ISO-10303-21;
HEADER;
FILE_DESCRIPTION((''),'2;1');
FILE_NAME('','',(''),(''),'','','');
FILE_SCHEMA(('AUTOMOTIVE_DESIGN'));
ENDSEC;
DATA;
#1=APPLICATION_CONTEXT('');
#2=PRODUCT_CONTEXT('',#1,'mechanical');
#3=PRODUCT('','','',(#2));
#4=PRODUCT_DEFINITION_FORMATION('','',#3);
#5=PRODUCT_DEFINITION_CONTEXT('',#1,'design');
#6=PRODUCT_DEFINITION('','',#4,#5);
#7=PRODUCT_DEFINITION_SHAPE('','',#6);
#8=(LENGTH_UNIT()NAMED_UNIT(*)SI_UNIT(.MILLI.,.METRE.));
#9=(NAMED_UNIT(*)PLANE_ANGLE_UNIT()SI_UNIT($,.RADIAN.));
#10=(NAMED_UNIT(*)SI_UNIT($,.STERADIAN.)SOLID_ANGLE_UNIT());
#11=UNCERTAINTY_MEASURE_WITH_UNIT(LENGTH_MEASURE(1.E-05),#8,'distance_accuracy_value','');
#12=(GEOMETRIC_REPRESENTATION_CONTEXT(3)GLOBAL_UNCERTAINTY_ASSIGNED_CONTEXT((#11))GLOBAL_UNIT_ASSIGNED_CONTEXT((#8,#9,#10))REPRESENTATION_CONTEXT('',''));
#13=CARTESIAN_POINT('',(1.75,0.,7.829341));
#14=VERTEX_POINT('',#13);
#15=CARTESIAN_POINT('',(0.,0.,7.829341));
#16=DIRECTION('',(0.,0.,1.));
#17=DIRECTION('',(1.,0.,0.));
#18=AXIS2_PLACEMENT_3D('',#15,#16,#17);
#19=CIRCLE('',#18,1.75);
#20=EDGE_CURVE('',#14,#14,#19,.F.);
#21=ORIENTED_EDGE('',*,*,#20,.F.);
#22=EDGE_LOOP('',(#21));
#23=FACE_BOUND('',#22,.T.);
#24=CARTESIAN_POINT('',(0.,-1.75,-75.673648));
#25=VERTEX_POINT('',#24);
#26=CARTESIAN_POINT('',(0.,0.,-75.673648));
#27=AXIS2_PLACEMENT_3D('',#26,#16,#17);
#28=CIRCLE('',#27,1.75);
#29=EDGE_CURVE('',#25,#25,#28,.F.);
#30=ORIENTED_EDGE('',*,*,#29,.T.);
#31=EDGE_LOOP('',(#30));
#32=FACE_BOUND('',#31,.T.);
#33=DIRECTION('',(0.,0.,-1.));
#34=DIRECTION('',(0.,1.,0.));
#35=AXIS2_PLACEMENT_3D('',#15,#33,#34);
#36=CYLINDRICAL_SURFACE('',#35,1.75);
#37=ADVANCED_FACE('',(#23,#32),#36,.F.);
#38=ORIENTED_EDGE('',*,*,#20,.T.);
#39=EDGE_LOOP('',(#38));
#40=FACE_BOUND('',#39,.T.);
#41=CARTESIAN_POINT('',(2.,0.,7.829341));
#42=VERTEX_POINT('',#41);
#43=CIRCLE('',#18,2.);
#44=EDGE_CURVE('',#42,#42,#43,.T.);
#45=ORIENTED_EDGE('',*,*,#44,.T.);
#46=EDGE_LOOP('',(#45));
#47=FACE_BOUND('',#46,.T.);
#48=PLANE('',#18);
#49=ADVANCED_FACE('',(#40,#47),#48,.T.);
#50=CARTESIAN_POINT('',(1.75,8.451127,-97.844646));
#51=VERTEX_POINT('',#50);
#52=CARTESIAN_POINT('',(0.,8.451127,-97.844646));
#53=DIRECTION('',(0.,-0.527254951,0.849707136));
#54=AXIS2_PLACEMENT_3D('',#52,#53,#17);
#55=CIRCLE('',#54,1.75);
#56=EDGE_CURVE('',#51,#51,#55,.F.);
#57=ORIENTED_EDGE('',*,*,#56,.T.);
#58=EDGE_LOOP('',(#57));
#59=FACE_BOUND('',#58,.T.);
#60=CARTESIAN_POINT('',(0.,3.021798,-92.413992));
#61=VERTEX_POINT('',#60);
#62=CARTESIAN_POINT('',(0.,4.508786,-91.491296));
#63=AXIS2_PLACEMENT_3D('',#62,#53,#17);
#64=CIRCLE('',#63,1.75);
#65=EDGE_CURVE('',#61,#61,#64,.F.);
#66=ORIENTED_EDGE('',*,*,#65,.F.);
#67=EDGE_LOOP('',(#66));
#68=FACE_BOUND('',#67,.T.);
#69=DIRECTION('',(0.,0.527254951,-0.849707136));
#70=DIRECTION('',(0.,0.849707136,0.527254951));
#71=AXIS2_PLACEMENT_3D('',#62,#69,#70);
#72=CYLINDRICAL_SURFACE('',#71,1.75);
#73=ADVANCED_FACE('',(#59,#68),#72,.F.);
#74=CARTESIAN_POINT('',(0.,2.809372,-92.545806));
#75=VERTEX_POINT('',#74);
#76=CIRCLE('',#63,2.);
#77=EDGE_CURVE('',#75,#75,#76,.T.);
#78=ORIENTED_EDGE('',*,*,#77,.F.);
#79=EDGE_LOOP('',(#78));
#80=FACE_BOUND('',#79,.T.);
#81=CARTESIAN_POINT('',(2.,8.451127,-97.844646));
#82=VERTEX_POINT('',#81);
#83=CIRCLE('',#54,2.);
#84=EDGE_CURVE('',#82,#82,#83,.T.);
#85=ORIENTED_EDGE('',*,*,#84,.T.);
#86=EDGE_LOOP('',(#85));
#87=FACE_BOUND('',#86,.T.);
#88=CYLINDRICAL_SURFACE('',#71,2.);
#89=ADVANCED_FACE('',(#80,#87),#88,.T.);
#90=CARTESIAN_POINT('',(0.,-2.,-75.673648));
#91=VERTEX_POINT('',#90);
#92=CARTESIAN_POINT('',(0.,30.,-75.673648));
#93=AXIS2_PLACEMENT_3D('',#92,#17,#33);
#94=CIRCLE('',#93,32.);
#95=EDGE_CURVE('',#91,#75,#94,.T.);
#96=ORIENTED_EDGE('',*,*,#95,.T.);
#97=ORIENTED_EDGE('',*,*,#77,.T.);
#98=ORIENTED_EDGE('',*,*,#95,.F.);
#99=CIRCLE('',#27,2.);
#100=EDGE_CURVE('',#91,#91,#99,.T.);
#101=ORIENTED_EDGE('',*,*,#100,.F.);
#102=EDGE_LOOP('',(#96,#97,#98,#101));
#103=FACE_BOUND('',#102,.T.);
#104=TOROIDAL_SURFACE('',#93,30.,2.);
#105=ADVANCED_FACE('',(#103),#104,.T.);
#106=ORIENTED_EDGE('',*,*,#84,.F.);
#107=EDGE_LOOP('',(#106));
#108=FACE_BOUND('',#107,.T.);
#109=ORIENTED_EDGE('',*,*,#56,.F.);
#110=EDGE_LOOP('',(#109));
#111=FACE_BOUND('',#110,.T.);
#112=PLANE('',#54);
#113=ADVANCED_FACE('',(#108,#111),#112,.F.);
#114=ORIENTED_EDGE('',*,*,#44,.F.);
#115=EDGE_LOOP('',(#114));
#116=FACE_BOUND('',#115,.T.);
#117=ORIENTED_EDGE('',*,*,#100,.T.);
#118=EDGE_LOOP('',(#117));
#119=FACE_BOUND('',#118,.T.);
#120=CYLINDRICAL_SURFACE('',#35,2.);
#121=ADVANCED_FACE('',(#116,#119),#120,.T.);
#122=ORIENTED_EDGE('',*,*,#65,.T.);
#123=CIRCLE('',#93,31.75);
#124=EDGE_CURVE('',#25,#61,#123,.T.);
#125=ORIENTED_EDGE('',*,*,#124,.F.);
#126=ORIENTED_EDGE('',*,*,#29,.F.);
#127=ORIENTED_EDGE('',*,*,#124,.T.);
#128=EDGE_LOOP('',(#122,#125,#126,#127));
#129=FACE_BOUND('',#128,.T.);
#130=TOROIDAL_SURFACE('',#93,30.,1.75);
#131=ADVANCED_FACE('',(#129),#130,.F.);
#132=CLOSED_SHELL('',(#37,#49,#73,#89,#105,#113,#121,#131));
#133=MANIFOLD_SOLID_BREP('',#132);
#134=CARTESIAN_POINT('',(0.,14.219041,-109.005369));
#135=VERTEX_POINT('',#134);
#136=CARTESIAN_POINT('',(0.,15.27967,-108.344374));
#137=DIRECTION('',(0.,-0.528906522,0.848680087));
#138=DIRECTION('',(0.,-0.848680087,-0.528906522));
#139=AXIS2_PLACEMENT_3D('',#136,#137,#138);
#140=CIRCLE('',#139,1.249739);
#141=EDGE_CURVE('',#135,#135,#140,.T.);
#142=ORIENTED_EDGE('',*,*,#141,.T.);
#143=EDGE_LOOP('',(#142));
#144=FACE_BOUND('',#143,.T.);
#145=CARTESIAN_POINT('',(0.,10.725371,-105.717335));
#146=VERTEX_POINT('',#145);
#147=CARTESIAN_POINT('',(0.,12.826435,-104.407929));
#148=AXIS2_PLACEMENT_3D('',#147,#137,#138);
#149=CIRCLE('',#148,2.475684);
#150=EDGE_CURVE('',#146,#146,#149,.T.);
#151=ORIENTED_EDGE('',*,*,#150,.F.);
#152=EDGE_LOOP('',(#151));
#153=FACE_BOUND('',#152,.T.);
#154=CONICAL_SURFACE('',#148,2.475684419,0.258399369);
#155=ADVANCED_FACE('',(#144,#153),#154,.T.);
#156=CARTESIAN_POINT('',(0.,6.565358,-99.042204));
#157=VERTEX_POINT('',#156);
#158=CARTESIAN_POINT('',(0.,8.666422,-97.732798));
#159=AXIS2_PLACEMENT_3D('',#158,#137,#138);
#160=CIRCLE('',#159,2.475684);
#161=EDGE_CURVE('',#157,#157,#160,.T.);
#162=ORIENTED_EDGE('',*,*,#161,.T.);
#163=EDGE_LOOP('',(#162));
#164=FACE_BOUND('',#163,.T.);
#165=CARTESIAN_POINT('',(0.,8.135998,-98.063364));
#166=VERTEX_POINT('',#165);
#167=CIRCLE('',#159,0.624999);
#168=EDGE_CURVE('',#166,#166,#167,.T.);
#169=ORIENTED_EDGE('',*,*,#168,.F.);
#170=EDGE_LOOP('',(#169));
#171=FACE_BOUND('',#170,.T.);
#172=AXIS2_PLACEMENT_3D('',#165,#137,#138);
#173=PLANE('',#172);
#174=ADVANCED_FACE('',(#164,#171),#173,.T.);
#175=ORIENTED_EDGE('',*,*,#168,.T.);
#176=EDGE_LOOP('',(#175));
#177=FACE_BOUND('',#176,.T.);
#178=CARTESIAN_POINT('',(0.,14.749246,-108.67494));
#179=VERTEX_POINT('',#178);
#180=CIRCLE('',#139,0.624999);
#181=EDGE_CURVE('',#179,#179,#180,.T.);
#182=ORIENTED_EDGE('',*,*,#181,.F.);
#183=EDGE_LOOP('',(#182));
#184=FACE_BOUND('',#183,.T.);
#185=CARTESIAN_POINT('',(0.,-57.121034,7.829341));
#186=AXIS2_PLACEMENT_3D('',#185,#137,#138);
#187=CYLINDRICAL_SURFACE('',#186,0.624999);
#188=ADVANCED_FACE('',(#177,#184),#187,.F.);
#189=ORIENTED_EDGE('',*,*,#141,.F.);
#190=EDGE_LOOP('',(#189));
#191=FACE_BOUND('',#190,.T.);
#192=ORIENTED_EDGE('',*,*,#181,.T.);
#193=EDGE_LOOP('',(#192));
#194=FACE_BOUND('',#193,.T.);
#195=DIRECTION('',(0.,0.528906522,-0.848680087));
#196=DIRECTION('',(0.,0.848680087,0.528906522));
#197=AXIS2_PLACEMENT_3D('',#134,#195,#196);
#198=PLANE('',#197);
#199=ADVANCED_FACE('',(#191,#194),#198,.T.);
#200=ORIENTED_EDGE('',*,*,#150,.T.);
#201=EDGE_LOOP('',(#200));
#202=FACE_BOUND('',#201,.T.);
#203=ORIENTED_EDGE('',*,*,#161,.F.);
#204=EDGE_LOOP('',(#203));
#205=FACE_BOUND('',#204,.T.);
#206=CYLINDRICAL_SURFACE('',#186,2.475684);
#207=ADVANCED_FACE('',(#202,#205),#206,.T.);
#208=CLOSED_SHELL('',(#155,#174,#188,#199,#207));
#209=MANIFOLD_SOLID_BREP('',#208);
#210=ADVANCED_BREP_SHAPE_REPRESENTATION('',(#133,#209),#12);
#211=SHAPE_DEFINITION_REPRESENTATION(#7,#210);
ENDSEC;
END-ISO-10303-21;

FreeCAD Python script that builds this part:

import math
import FreeCAD as App
import Part
import Sketcher
from FreeCAD import Vector
Q = App.Units.Quantity

doc = App.newDocument("Part")
body = doc.addObject("PartDesign::Body", "Body")

sketch1 = body.newObject("Sketcher::SketchObject", "Sketch")
sketch1.AttachmentSupport = (doc.getObject("XY_Plane"), [""])
sketch1.MapMode = "FlatFace"
sketch1.addGeometry(Part.Circle(Vector(0, 0, 0), Vector(0, 0, 1), 2), False)
sketch1.addGeometry(Part.Circle(Vector(0, 0, 0), Vector(0, 0, 1), 1.75), False)
sketch1.addConstraint(Sketcher.Constraint("Coincident", 0, 3, -1, 1))
sketch1.addConstraint(Sketcher.Constraint("Coincident", 1, 3, -1, 1))
sketch1.addConstraint(Sketcher.Constraint("Diameter", 0, Q("4 mm")))
sketch1.addConstraint(Sketcher.Constraint("Diameter", 1, Q("3.5 mm")))

sketch2 = body.newObject("Sketcher::SketchObject", "Sketch001")
sketch2.AttachmentSupport = (doc.getObject("YZ_Plane"), [""])
sketch2.MapMode = "FlatFace"
sketch2.addGeometry(Part.LineSegment(Vector(0, 7.829341, 0), Vector(0, -75.673648, 0)), False)
sketch2.addGeometry(Part.ArcOfCircle(Part.Circle(Vector(30, -75.673648, 0), Vector(0, 0, 1), 30), math.radians(180), math.radians(211.82017)), False)
sketch2.addGeometry(Part.LineSegment(Vector(4.508786, -91.491296, 0), Vector(8.451127, -97.844646, 0)), False)
sketch2.addConstraint(Sketcher.Constraint("Tangent", 0, 2, 1, 1))
sketch2.addConstraint(Sketcher.Constraint("Tangent", 1, 2, 2, 1))
sketch2.addConstraint(Sketcher.Constraint("Vertical", 0))
sketch2.addConstraint(Sketcher.Constraint("PointOnObject", 0, 1, -2))
sketch2.addConstraint(Sketcher.Constraint("Radius", 1, Q("30 mm")))
sketch2.addConstraint(Sketcher.Constraint("DistanceY", 2, 2, 0, 2, Q("22.170999 mm")))
sketch2.addConstraint(Sketcher.Constraint("DistanceY", 0, 2, 0, 1, Q("83.502989 mm")))
sketch2.addConstraint(Sketcher.Constraint("DistanceY", -1, 1, 0, 1, Q("7.829341 mm")))
sketch2.addConstraint(Sketcher.Constraint("DistanceY", 1, 2, 0, 2, Q("15.817649 mm")))
doc.recompute()

additivepipe = body.newObject("PartDesign::AdditivePipe", "AdditivePipe")
additivepipe.Profile = sketch1
additivepipe.Spine = (sketch2, ["Edge1", "Edge2", "Edge3"])
body2 = doc.addObject("PartDesign::Body", "Body001")

sketch3 = body2.newObject("Sketcher::SketchObject", "Sketch002")
sketch3.AttachmentSupport = (doc.getObject("YZ_Plane001"), [""])
sketch3.MapMode = "FlatFace"
sketch3.addGeometry(Part.LineSegment(Vector(8.135998, -98.063364, 0), Vector(6.565358, -99.042204, 0)), False)
sketch3.addGeometry(Part.LineSegment(Vector(6.565358, -99.042204, 0), Vector(10.725371, -105.717335, 0)), False)
sketch3.addGeometry(Part.LineSegment(Vector(10.725371, -105.717335, 0), Vector(14.219041, -109.005369, 0)), False)
sketch3.addGeometry(Part.LineSegment(Vector(14.219041, -109.005369, 0), Vector(14.749246, -108.67494, 0)), False)
sketch3.addGeometry(Part.LineSegment(Vector(14.749246, -108.67494, 0), Vector(8.135998, -98.063364, 0)), False)
sketch3.addGeometry(Part.LineSegment(Vector(8.666422, -97.732798, 0), Vector(15.27967, -108.344374, 0)), True)
sketch3.addConstraint(Sketcher.Constraint("Coincident", 0, 2, 1, 1))
sketch3.addConstraint(Sketcher.Constraint("Coincident", 1, 2, 2, 1))
sketch3.addConstraint(Sketcher.Constraint("Coincident", 2, 2, 3, 1))
sketch3.addConstraint(Sketcher.Constraint("Coincident", 3, 2, 4, 1))
sketch3.addConstraint(Sketcher.Constraint("Coincident", 4, 2, 0, 1))
sketch3.addConstraint(Sketcher.Constraint("Perpendicular", 0, 1))
sketch3.addConstraint(Sketcher.Constraint("Perpendicular", 1, 3))
sketch3.addConstraint(Sketcher.Constraint("Perpendicular", 3, 4))
sketch3.addConstraint(Sketcher.Constraint("Parallel", 4, 5))
sketch3.addConstraint(Sketcher.Constraint("Equal", 4, 5))
sketch3.addConstraint(Sketcher.Constraint("DistanceX", -1, 1, 4, 2, Q("8.135998 mm")))
sketch3.addConstraint(Sketcher.Constraint("DistanceY", 5, 1, -1, 1, Q("97.732798 mm")))
sketch3.addConstraint(Sketcher.Constraint("DistanceX", 1, 2, 5, 2, Q("4.554299 mm")))
sketch3.addConstraint(Sketcher.Constraint("Distance", 1, Q("7.865309 mm")))
sketch3.addConstraint(Sketcher.Constraint("Distance", 3, Q("0.62474 mm")))
sketch3.addConstraint(Sketcher.Constraint("DistanceX", -1, 1, 0, 2, Q("6.565358 mm")))
sketch3.addConstraint(Sketcher.Constraint("DistanceX", -1, 1, 1, 2, Q("10.725371 mm")))
sketch3.addConstraint(Sketcher.Constraint("DistanceX", -1, 1, 2, 2, Q("14.219041 mm")))
sketch3.addConstraint(Sketcher.Constraint("DistanceY", 2, 2, -1, 1, Q("109.005369 mm")))
revolution = body2.newObject("PartDesign::Revolution", "Revolution")
revolution.Profile = sketch3
revolution.ReferenceAxis = (sketch3, ["Axis0"])
revolution.Angle = 360

doc.recompute()
